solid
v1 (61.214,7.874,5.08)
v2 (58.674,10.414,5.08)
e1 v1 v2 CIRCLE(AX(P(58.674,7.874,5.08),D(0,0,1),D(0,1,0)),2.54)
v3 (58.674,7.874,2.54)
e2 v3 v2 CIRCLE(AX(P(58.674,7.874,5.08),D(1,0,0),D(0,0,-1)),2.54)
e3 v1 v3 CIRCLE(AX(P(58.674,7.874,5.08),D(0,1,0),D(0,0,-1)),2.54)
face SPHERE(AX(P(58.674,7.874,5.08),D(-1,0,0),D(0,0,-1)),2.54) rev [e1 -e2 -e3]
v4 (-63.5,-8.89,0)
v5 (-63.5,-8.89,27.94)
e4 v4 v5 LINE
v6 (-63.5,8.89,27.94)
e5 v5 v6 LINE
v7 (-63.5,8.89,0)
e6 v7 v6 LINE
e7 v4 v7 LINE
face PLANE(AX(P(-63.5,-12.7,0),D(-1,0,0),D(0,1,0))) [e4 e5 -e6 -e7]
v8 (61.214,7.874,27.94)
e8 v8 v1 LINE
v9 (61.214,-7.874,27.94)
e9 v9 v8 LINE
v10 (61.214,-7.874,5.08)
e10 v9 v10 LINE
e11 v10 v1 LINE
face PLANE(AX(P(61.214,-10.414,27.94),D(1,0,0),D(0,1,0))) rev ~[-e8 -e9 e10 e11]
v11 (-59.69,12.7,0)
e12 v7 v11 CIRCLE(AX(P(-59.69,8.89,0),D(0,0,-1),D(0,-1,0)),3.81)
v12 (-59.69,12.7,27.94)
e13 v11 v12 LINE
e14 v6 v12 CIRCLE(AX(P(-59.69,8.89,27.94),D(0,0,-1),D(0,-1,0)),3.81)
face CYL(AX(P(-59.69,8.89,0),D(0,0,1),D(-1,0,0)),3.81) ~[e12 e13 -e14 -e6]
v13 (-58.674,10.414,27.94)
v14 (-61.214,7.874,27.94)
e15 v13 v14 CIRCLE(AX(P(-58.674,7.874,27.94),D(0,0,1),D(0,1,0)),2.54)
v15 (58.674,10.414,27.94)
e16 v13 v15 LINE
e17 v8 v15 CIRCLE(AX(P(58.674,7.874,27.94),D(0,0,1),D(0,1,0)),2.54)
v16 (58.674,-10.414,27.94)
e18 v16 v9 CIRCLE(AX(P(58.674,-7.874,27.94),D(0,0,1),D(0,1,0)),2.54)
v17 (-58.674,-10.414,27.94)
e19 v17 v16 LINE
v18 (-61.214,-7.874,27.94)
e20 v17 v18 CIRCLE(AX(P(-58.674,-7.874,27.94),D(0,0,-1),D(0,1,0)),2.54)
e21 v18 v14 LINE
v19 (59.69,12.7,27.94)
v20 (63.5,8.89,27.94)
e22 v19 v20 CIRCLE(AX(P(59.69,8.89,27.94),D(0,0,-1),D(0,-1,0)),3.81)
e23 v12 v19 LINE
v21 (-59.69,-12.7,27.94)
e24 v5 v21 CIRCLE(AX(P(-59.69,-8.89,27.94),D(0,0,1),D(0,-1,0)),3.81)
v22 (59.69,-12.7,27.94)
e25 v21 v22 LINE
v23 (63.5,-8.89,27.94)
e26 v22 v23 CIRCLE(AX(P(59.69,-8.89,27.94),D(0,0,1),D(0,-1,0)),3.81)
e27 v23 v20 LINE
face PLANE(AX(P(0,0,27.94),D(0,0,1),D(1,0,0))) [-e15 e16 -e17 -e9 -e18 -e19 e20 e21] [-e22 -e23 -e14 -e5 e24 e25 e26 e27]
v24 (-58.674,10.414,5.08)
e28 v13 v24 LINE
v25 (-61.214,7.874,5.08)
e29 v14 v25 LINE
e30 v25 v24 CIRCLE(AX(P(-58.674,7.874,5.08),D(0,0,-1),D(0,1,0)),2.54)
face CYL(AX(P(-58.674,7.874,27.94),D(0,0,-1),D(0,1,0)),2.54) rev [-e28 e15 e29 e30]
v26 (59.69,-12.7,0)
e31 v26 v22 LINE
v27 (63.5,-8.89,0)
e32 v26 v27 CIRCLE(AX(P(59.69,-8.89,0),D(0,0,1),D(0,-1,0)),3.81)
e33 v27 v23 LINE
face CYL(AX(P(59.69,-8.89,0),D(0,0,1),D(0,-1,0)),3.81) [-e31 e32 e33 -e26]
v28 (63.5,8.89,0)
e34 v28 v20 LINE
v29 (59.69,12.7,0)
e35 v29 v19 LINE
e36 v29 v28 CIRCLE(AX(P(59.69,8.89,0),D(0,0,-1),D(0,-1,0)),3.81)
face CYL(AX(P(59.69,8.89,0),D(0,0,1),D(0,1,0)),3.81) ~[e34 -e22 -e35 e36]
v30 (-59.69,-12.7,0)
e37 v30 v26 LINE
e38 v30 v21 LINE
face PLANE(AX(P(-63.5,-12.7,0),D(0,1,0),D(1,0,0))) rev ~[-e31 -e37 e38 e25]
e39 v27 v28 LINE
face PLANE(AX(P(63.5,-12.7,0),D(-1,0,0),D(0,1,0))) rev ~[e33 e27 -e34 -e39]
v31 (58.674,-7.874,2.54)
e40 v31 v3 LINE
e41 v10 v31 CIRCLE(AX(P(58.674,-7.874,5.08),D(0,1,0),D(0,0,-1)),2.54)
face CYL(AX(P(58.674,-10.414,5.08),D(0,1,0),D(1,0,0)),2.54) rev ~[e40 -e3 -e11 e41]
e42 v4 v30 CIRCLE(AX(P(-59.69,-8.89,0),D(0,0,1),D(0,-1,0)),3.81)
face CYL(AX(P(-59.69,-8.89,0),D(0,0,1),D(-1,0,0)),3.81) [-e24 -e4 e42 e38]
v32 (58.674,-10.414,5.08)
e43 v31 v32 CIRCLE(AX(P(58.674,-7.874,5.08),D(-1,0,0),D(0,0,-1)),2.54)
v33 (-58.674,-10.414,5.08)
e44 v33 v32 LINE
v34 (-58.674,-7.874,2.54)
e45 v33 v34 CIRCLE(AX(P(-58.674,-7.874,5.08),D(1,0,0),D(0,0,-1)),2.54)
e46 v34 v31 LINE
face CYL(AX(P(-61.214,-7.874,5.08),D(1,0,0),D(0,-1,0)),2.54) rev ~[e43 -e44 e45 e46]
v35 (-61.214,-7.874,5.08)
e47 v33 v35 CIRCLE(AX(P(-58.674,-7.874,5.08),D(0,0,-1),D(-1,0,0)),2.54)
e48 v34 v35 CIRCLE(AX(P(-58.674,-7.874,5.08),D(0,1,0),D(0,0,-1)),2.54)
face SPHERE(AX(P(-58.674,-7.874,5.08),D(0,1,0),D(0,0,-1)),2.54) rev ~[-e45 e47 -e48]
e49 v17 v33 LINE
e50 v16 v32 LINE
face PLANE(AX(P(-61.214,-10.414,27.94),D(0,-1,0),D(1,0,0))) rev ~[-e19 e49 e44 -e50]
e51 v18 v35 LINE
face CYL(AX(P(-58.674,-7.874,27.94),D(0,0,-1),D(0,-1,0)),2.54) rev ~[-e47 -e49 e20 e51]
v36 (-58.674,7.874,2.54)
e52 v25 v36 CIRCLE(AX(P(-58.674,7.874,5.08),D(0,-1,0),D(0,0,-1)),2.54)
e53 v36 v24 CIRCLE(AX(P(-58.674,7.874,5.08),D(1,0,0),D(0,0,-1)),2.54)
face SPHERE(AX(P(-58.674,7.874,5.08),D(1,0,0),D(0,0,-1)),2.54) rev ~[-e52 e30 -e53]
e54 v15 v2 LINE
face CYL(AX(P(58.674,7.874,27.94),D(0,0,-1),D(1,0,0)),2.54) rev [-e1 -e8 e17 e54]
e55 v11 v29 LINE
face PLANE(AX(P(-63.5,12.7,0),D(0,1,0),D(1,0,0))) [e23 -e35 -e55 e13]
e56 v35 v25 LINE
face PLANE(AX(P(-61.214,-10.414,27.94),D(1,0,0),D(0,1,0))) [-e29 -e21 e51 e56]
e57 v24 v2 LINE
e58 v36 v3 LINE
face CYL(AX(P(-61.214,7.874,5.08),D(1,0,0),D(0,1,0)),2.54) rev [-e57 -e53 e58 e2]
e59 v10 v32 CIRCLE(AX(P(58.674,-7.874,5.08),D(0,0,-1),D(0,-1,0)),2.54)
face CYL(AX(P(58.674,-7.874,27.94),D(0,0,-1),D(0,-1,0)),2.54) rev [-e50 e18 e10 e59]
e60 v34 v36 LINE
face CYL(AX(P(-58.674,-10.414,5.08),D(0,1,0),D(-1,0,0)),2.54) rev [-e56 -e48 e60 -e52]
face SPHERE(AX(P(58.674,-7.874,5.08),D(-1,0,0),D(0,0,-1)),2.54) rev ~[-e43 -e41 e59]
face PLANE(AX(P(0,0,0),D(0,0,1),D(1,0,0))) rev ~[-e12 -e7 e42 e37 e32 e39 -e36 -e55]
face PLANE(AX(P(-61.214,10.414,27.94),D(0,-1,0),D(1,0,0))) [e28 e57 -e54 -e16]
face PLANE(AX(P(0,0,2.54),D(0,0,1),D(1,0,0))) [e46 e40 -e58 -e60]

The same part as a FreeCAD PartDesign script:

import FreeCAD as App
import Part
import Sketcher
Q = App.Units.Quantity


def edges_at(feature, points):
    """Names of the edges that pass closest to the given points."""
    edges = feature.Shape.Edges
    near = lambda p: min(range(len(edges)), key=lambda i: edges[i].distToShape(Part.Vertex(*p))[0])
    return sorted({f"Edge{near(p) + 1}" for p in points})

doc = App.newDocument("Part")
params = doc.addObject("Spreadsheet::Sheet", "Params")
for row, (alias, value) in enumerate([
    ("sketch1_width", "5 in"),
    ("sketch1_height", "1 in"),
    ("pad1_length", "1.1 in"),
    ("sketch2_width", "4.82 in"),
    ("sketch2_height", "0.82 in"),
    ("pocket1_length", "1 in"),
    ("fillet_radius", "0.1 in"),
    ("fillet2_radius", "0.15 in"),
], start=1):
    params.set(f"A{row}", alias)
    params.set(f"B{row}", "=" + value)
    params.setAlias(f"B{row}", alias)

body = doc.addObject("PartDesign::Body", "Body")

# Sketch on XY plane
sketch1 = body.newObject("Sketcher::SketchObject", "Sketch")
sketch1.AttachmentSupport = (doc.getObject("XY_Plane"), [""])
sketch1.MapMode = "FlatFace"
sketch1.addGeometry(Part.LineSegment(App.Vector(-64, 13, 0), App.Vector(-64, -13, 0)), False)
sketch1.addGeometry(Part.LineSegment(App.Vector(-64, -13, 0), App.Vector(64, -13, 0)), False)
sketch1.addGeometry(Part.LineSegment(App.Vector(64, -13, 0), App.Vector(64, 13, 0)), False)
sketch1.addGeometry(Part.LineSegment(App.Vector(64, 13, 0), App.Vector(-64, 13, 0)), False)
sketch1.addConstraint(Sketcher.Constraint("Coincident", 0, 2, 1, 1))
sketch1.addConstraint(Sketcher.Constraint("Coincident", 1, 2, 2, 1))
sketch1.addConstraint(Sketcher.Constraint("Coincident", 2, 2, 3, 1))
sketch1.addConstraint(Sketcher.Constraint("Coincident", 3, 2, 0, 1))
sketch1.addConstraint(Sketcher.Constraint("Vertical", 0))
sketch1.addConstraint(Sketcher.Constraint("Horizontal", 1))
sketch1.addConstraint(Sketcher.Constraint("Vertical", 2))
sketch1.addConstraint(Sketcher.Constraint("Horizontal", 3))
sketch1.addConstraint(Sketcher.Constraint("Symmetric", 0, 2, 2, 2, -1, 1))
sketch1.addConstraint(Sketcher.Constraint("DistanceX", 1, 1, 1, 2, Q("5 in")))
sketch1.addConstraint(Sketcher.Constraint("DistanceY", 0, 2, 0, 1, Q("1 in")))
sketch1.setExpression("Constraints[9]", "Params.sketch1_width")
sketch1.setExpression("Constraints[10]", "Params.sketch1_height")
pad1 = body.newObject("PartDesign::Pad", "Pad")
pad1.Profile = sketch1
pad1.setExpression("Length", "Params.pad1_length")

# Sketch on XY plane
sketch2 = body.newObject("Sketcher::SketchObject", "Sketch001")
sketch2.AttachmentSupport = (doc.getObject("XY_Plane"), [""])
sketch2.MapMode = "FlatFace"
sketch2.AttachmentOffset = App.Placement(App.Vector(0, 0, 1.1 * 25.4), App.Rotation())
sketch2.addGeometry(Part.LineSegment(App.Vector(-61, 10, 0), App.Vector(-61, -10, 0)), False)
sketch2.addGeometry(Part.LineSegment(App.Vector(-61, -10, 0), App.Vector(61, -10, 0)), False)
sketch2.addGeometry(Part.LineSegment(App.Vector(61, -10, 0), App.Vector(61, 10, 0)), False)
sketch2.addGeometry(Part.LineSegment(App.Vector(61, 10, 0), App.Vector(-61, 10, 0)), False)
sketch2.addConstraint(Sketcher.Constraint("Coincident", 0, 2, 1, 1))
sketch2.addConstraint(Sketcher.Constraint("Coincident", 1, 2, 2, 1))
sketch2.addConstraint(Sketcher.Constraint("Coincident", 2, 2, 3, 1))
sketch2.addConstraint(Sketcher.Constraint("Coincident", 3, 2, 0, 1))
sketch2.addConstraint(Sketcher.Constraint("Vertical", 0))
sketch2.addConstraint(Sketcher.Constraint("Horizontal", 1))
sketch2.addConstraint(Sketcher.Constraint("Vertical", 2))
sketch2.addConstraint(Sketcher.Constraint("Horizontal", 3))
sketch2.addConstraint(Sketcher.Constraint("Symmetric", 0, 2, 2, 2, -1, 1))
sketch2.addConstraint(Sketcher.Constraint("DistanceX", 1, 1, 1, 2, Q("4.82 in")))
sketch2.addConstraint(Sketcher.Constraint("DistanceY", 0, 2, 0, 1, Q("0.82 in")))
sketch2.setExpression("Constraints[9]", "Params.sketch2_width")
sketch2.setExpression("Constraints[10]", "Params.sketch2_height")
pocket1 = body.newObject("PartDesign::Pocket", "Pocket")
pocket1.Profile = sketch2
pocket1.setExpression("Length", "Params.pocket1_length")
doc.recompute()

fillet = body.newObject("PartDesign::Fillet", "Fillet")
fillet.Base = (pocket1, edges_at(pocket1, [
    (0, 10.414, 2.54),
    (-61.214, 0, 2.54),
    (0, -10.414, 2.54),
    (61.214, 0, 2.54),
    (-61.214, 10.414, 15.24),
    (61.214, 10.414, 15.24),
    (61.214, -10.414, 15.24),
    (-61.214, -10.414, 15.24),
]))
fillet.setExpression("Radius", "Params.fillet_radius")
doc.recompute()

fillet2 = body.newObject("PartDesign::Fillet", "Fillet001")
fillet2.Base = (fillet, edges_at(fillet, [
    (-63.5, -12.7, 13.97),
    (-63.5, 12.7, 13.97),
    (63.5, 12.7, 13.97),
    (63.5, -12.7, 13.97),
]))
fillet2.setExpression("Radius", "Params.fillet2_radius")

doc.recompute()
